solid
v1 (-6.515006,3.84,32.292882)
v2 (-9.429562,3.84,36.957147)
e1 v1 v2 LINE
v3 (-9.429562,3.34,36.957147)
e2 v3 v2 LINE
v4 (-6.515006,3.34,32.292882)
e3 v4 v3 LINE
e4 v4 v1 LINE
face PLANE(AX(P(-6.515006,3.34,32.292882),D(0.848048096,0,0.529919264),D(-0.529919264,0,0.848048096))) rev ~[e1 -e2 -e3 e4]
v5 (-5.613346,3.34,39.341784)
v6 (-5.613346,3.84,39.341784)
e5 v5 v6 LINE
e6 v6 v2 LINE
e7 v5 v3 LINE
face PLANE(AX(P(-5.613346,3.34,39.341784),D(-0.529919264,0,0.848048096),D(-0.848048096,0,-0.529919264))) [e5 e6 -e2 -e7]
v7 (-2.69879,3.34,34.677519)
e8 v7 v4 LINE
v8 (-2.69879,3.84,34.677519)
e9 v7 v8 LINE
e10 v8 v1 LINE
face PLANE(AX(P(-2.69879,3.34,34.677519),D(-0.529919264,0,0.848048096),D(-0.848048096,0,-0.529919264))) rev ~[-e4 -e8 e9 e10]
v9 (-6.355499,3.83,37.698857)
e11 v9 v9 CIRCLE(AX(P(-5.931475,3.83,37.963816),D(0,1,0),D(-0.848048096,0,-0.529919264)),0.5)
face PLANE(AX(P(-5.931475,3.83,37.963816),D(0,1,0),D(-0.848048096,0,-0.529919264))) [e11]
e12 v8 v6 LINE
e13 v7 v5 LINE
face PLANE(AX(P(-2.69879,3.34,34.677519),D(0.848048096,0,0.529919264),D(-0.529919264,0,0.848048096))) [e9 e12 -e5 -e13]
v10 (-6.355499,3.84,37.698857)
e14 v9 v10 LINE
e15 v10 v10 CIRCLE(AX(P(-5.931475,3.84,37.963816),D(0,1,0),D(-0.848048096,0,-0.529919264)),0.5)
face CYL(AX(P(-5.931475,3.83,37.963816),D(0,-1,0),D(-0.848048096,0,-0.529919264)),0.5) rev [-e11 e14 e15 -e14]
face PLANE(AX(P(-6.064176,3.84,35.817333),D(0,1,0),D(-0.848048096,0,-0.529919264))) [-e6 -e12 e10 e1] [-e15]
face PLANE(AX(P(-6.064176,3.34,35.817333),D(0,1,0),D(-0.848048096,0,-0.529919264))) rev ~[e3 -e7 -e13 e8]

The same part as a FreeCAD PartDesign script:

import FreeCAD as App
import Part
import Sketcher

V = App.Vector
Q = App.Units.Quantity


def add_polygon(sketch, points):
    """Adds a closed chain of lines whose ends are joined by coincident constraints."""
    first, n = sketch.GeometryCount, len(points)
    for a, b in zip(points, points[1:] + points[:1]):
        sketch.addGeometry(Part.LineSegment(App.Vector(*a, 0), App.Vector(*b, 0)), False)
    for i in range(n):
        sketch.addConstraint(Sketcher.Constraint("Coincident", first + i, 2, first + (i + 1) % n, 1))

doc = App.newDocument("Part")
params = doc.addObject("Spreadsheet::Sheet", "Params")
for row, (alias, value) in enumerate([
    ("sketch1_diameter", "1 mm"),
    ("pad1_length", "0.01 mm"),
    ("sketch2_width", "4.5 mm"),
    ("sketch2_height", "5.5 mm"),
    ("pad2_length", "0.5 mm"),
], start=1):
    params.set(f"A{row}", alias)
    params.set(f"B{row}", "=" + value)
    params.setAlias(f"B{row}", alias)

body = doc.addObject("PartDesign::Body", "Body")

sketch1 = body.newObject("Sketcher::SketchObject", "Sketch")
sketch1.AttachmentSupport = (doc.getObject("XY_Plane"), [""])
sketch1.MapMode = "FlatFace"
sketch1.AttachmentOffset = App.Placement(V(0, 0, 0.49), App.Rotation())
sketch1.addGeometry(Part.Circle(V(1, 4.5, 0), V(0, 0, 1), 0.5), False)
sketch1.addConstraint(Sketcher.Constraint("Diameter", 0, Q("1 mm")))
sketch1.addConstraint(Sketcher.Constraint("DistanceX", -1, 1, 0, 3, Q("1 mm")))
sketch1.addConstraint(Sketcher.Constraint("DistanceY", -1, 1, 0, 3, Q("4.5 mm")))
sketch1.setExpression("Constraints[0]", "Params.sketch1_diameter")
pad1 = body.newObject("PartDesign::Pad", "Pad")
pad1.Profile = sketch1
pad1.setExpression("Length", "Params.pad1_length")
body2 = doc.addObject("PartDesign::Body", "Body001")

sketch2 = body2.newObject("Sketcher::SketchObject", "Sketch001")
sketch2.AttachmentSupport = (doc.getObject("XY_Plane001"), [""])
sketch2.MapMode = "FlatFace"
add_polygon(sketch2, [(0, 5.5), (0, 0), (4.5, 0), (4.5, 5.5)])
sketch2.addConstraint(Sketcher.Constraint("Vertical", 0))
sketch2.addConstraint(Sketcher.Constraint("Horizontal", 1))
sketch2.addConstraint(Sketcher.Constraint("Vertical", 2))
sketch2.addConstraint(Sketcher.Constraint("Horizontal", 3))
sketch2.addConstraint(Sketcher.Constraint("Coincident", 0, 2, -1, 1))
sketch2.addConstraint(Sketcher.Constraint("DistanceX", 1, 1, 1, 2, Q("4.5 mm")))
sketch2.addConstraint(Sketcher.Constraint("DistanceY", 0, 2, 0, 1, Q("5.5 mm")))
sketch2.setExpression("Constraints[9]", "Params.sketch2_width")
sketch2.setExpression("Constraints[10]", "Params.sketch2_height")
pad2 = body2.newObject("PartDesign::Pad", "Pad001")
pad2.Profile = sketch2
pad2.setExpression("Length", "Params.pad2_length")
doc.recompute()

boolean = body2.newObject("PartDesign::Boolean", "Boolean")
boolean.Type = "Cut"
boolean.addObjects([body])
body3 = doc.addObject("PartDesign::Body", "Body002")
doc.recompute()

body2.Placement = App.Placement(V(0, 0, 0), App.Rotation(V(1, 0, 0), 90))
boolean2 = body3.newObject("PartDesign::Boolean", "Boolean001")
boolean2.Type = "Fuse"
boolean2.addObjects([body2])
body4 = doc.addObject("PartDesign::Body", "Body003")
doc.recompute()

body3.Placement = App.Placement(V(0, 0, 0), App.Rotation(V(0, 1, 0), 32))
boolean3 = body4.newObject("PartDesign::Boolean", "Boolean002")
boolean3.Type = "Fuse"
boolean3.addObjects([body3])
body5 = doc.addObject("PartDesign::Body", "Body004")
doc.recompute()

body4.Placement = App.Placement(V(-2.69879, 3.34, 34.677519), App.Rotation(V(0, 0, 1), 180))
boolean4 = body5.newObject("PartDesign::Boolean", "Boolean003")
boolean4.Type = "Fuse"
boolean4.addObjects([body4])

doc.recompute()
